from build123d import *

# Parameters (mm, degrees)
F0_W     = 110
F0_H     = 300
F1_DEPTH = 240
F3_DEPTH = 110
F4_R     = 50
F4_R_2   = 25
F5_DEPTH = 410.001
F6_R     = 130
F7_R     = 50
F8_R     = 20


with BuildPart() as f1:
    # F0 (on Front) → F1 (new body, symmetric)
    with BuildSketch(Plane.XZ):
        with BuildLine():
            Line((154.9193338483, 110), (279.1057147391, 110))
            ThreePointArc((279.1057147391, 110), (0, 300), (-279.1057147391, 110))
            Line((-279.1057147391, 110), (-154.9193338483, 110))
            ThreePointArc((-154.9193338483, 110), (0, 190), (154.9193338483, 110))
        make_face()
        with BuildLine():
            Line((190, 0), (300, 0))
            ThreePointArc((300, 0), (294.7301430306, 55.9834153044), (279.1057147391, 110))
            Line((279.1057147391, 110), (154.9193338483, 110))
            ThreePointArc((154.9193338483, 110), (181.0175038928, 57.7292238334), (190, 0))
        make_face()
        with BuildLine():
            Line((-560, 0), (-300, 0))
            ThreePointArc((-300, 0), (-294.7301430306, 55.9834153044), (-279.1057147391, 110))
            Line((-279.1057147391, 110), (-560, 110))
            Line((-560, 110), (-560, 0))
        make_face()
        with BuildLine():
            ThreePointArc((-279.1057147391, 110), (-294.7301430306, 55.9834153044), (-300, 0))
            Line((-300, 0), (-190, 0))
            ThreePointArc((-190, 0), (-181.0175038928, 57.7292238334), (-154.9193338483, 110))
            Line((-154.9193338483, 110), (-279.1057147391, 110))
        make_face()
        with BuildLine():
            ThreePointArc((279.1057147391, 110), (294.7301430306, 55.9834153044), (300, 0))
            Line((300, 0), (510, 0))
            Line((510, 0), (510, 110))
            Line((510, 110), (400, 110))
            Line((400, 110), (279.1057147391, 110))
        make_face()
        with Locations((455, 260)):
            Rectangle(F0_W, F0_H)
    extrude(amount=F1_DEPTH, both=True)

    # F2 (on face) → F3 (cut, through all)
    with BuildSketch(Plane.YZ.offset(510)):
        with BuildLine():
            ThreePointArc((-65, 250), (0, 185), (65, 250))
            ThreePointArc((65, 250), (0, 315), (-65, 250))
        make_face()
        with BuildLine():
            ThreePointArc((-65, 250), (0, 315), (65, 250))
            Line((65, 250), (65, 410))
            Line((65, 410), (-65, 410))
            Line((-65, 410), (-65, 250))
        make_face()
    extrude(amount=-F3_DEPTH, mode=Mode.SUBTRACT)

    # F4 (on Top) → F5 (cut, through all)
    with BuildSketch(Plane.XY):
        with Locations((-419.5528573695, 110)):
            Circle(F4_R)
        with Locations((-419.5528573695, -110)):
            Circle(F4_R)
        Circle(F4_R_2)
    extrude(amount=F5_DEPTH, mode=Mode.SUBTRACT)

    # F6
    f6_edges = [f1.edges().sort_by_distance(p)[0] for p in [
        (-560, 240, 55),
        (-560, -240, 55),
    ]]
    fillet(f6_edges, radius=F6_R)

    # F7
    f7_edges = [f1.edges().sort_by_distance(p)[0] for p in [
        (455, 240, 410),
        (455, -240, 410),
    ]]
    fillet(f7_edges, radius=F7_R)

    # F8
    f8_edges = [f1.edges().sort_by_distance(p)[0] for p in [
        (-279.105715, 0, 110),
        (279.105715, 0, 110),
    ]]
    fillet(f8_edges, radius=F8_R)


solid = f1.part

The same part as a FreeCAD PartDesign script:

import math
import FreeCAD as App
import Part
import Sketcher
from FreeCAD import Vector
Q = App.Units.Quantity


def edges_at(feature, points):
    """Names of the edges that pass closest to the given points."""
    edges = feature.Shape.Edges
    near = lambda p: min(range(len(edges)), key=lambda i: edges[i].distToShape(Part.Vertex(*p))[0])
    return sorted({f"Edge{near(p) + 1}" for p in points})

doc = App.newDocument("Part")
body = doc.addObject("PartDesign::Body", "Body")

sketch1 = body.newObject("Sketcher::SketchObject", "Sketch")
sketch1.AttachmentSupport = (doc.getObject("XZ_Plane"), [""])
sketch1.MapMode = "FlatFace"
sketch1.addGeometry([
    Part.ArcOfCircle(Part.Circle(Vector(0, 0, 0), Vector(0, 0, 1), 300), math.radians(21.510188), math.radians(158.489812)),
    Part.LineSegment(Vector(-279.105715, 110, 0), Vector(-560, 110, 0)),
    Part.LineSegment(Vector(-560, 110, 0), Vector(-560, 0, 0)),
    Part.LineSegment(Vector(-560, 0, 0), Vector(-190, 0, 0)),
    Part.ArcOfCircle(Part.Circle(Vector(0, 0, 0), Vector(0, 0, 1), 190), math.radians(144.62346), math.radians(180)),
    Part.ArcOfCircle(Part.Circle(Vector(0, 0, 0), Vector(0, 0, 1), 190), math.radians(35.37654), math.radians(144.62346)),
    Part.ArcOfCircle(Part.Circle(Vector(0, 0, 0), Vector(0, 0, 1), 190), math.radians(0), math.radians(35.37654)),
    Part.LineSegment(Vector(190, 0, 0), Vector(510, 0, 0)),
    Part.LineSegment(Vector(510, 0, 0), Vector(510, 410, 0)),
    Part.LineSegment(Vector(510, 410, 0), Vector(400, 410, 0)),
    Part.LineSegment(Vector(400, 410, 0), Vector(400, 110, 0)),
    Part.LineSegment(Vector(400, 110, 0), Vector(279.105715, 110, 0)),
], False)
sketch1.addConstraint([
    Sketcher.Constraint("Coincident", 0, 2, 1, 1),
    Sketcher.Constraint("Coincident", 1, 2, 2, 1),
    Sketcher.Constraint("Coincident", 2, 2, 3, 1),
    Sketcher.Constraint("Coincident", 3, 2, 4, 2),
    Sketcher.Constraint("Tangent", 4, 1, 5, 2),
    Sketcher.Constraint("Tangent", 5, 1, 6, 2),
    Sketcher.Constraint("Coincident", 6, 1, 7, 1),
    Sketcher.Constraint("Coincident", 7, 2, 8, 1),
    Sketcher.Constraint("Coincident", 8, 2, 9, 1),
    Sketcher.Constraint("Coincident", 9, 2, 10, 1),
    Sketcher.Constraint("Coincident", 10, 2, 11, 1),
    Sketcher.Constraint("Coincident", 11, 2, 0, 1),
    Sketcher.Constraint("Horizontal", 1),
    Sketcher.Constraint("Vertical", 2),
    Sketcher.Constraint("Horizontal", 3),
    Sketcher.Constraint("Horizontal", 7),
    Sketcher.Constraint("Vertical", 8),
    Sketcher.Constraint("Horizontal", 9),
    Sketcher.Constraint("Vertical", 10),
    Sketcher.Constraint("Horizontal", 11),
    Sketcher.Constraint("Coincident", 0, 3, -1, 1),
    Sketcher.Constraint("Coincident", 4, 3, -1, 1),
    Sketcher.Constraint("Coincident", 6, 3, -1, 1),
    Sketcher.Constraint("PointOnObject", 2, 2, -1),
    Sketcher.Constraint("PointOnObject", 6, 1, -1),
    Sketcher.Constraint("Horizontal", 1, 2, 4, 1),
    Sketcher.Constraint("Horizontal", 4, 1, 5, 1),
    Sketcher.Constraint("Horizontal", 5, 1, 10, 2),
    Sketcher.Constraint("Equal", 9, 2),
    Sketcher.Constraint("Radius", 0, Q("300 mm")),
    Sketcher.Constraint("Radius", 4, Q("190 mm")),
    Sketcher.Constraint("DistanceX", 3, 1, 3, 2, Q("370 mm")),
    Sketcher.Constraint("DistanceX", 7, 1, 7, 2, Q("320 mm")),
    Sketcher.Constraint("DistanceX", 9, 2, 9, 1, Q("110 mm")),
    Sketcher.Constraint("DistanceY", 8, 1, 8, 2, Q("410 mm")),
])
pad1 = body.newObject("PartDesign::Pad", "Pad")
pad1.Profile = sketch1
pad1.Length = 480
pad1.Midplane = True

sketch2 = body.newObject("Sketcher::SketchObject", "Sketch001")
sketch2.AttachmentSupport = (doc.getObject("YZ_Plane"), [""])
sketch2.MapMode = "FlatFace"
sketch2.AttachmentOffset = App.Placement(Vector(0, 0, 510), App.Rotation())
sketch2.addGeometry([
    Part.ArcOfCircle(Part.Circle(Vector(0, 250, 0), Vector(0, 0, 1), 65), math.radians(180), math.radians(360)),
    Part.LineSegment(Vector(65, 250, 0), Vector(65, 410, 0)),
    Part.LineSegment(Vector(65, 410, 0), Vector(-65, 410, 0)),
    Part.LineSegment(Vector(-65, 410, 0), Vector(-65, 250, 0)),
], False)
sketch2.addConstraint([
    Sketcher.Constraint("Tangent", 0, 2, 1, 1),
    Sketcher.Constraint("Coincident", 1, 2, 2, 1),
    Sketcher.Constraint("Coincident", 2, 2, 3, 1),
    Sketcher.Constraint("Tangent", 3, 2, 0, 1),
    Sketcher.Constraint("Vertical", 1),
    Sketcher.Constraint("Horizontal", 2),
    Sketcher.Constraint("Vertical", 3),
    Sketcher.Constraint("PointOnObject", 0, 3, -2),
    Sketcher.Constraint("Radius", 0, Q("65 mm")),
    Sketcher.Constraint("DistanceY", 1, 1, 1, 2, Q("160 mm")),
    Sketcher.Constraint("DistanceY", -1, 1, 0, 3, Q("250 mm")),
])
pocket1 = body.newObject("PartDesign::Pocket", "Pocket")
pocket1.Profile = sketch2
pocket1.Length = 110

sketch3 = body.newObject("Sketcher::SketchObject", "Sketch002")
sketch3.AttachmentSupport = (doc.getObject("XY_Plane"), [""])
sketch3.MapMode = "FlatFace"
sketch3.addGeometry([
    Part.Circle(Vector(-419.552857, 110, 0), Vector(0, 0, 1), 50),
    Part.Circle(Vector(-419.552857, -110, 0), Vector(0, 0, 1), 50),
    Part.Circle(Vector(0, 0, 0), Vector(0, 0, 1), 25),
], False)
sketch3.addConstraint([
    Sketcher.Constraint("Coincident", 2, 3, -1, 1),
    Sketcher.Constraint("Equal", 0, 1),
    Sketcher.Constraint("Symmetric", 0, 3, 1, 3, -1),
    Sketcher.Constraint("Diameter", 0, Q("100 mm")),
    Sketcher.Constraint("Diameter", 2, Q("50 mm")),
    Sketcher.Constraint("DistanceY", -1, 1, 0, 3, Q("110 mm")),
    Sketcher.Constraint("DistanceX", 0, 3, -1, 1, Q("419.552857 mm")),
])
pocket2 = body.newObject("PartDesign::Pocket", "Pocket001")
pocket2.Profile = sketch3
pocket2.Type = "ThroughAll"
pocket2.Reversed = True
doc.recompute()

fillet = body.newObject("PartDesign::Fillet", "Fillet")
fillet.Base = (pocket2, edges_at(pocket2, [(-560, 240, 55), (-560, -240, 55)]))
fillet.Radius = 130
doc.recompute()

fillet2 = body.newObject("PartDesign::Fillet", "Fillet001")
fillet2.Base = (fillet, edges_at(fillet, [(455, 240, 410), (455, -240, 410)]))
fillet2.Radius = 50
doc.recompute()

fillet3 = body.newObject("PartDesign::Fillet", "Fillet002")
fillet3.Base = (fillet2, edges_at(fillet2, [(-279.106, 0, 110), (279.106, 0, 110)]))
fillet3.Radius = 20

doc.recompute()
